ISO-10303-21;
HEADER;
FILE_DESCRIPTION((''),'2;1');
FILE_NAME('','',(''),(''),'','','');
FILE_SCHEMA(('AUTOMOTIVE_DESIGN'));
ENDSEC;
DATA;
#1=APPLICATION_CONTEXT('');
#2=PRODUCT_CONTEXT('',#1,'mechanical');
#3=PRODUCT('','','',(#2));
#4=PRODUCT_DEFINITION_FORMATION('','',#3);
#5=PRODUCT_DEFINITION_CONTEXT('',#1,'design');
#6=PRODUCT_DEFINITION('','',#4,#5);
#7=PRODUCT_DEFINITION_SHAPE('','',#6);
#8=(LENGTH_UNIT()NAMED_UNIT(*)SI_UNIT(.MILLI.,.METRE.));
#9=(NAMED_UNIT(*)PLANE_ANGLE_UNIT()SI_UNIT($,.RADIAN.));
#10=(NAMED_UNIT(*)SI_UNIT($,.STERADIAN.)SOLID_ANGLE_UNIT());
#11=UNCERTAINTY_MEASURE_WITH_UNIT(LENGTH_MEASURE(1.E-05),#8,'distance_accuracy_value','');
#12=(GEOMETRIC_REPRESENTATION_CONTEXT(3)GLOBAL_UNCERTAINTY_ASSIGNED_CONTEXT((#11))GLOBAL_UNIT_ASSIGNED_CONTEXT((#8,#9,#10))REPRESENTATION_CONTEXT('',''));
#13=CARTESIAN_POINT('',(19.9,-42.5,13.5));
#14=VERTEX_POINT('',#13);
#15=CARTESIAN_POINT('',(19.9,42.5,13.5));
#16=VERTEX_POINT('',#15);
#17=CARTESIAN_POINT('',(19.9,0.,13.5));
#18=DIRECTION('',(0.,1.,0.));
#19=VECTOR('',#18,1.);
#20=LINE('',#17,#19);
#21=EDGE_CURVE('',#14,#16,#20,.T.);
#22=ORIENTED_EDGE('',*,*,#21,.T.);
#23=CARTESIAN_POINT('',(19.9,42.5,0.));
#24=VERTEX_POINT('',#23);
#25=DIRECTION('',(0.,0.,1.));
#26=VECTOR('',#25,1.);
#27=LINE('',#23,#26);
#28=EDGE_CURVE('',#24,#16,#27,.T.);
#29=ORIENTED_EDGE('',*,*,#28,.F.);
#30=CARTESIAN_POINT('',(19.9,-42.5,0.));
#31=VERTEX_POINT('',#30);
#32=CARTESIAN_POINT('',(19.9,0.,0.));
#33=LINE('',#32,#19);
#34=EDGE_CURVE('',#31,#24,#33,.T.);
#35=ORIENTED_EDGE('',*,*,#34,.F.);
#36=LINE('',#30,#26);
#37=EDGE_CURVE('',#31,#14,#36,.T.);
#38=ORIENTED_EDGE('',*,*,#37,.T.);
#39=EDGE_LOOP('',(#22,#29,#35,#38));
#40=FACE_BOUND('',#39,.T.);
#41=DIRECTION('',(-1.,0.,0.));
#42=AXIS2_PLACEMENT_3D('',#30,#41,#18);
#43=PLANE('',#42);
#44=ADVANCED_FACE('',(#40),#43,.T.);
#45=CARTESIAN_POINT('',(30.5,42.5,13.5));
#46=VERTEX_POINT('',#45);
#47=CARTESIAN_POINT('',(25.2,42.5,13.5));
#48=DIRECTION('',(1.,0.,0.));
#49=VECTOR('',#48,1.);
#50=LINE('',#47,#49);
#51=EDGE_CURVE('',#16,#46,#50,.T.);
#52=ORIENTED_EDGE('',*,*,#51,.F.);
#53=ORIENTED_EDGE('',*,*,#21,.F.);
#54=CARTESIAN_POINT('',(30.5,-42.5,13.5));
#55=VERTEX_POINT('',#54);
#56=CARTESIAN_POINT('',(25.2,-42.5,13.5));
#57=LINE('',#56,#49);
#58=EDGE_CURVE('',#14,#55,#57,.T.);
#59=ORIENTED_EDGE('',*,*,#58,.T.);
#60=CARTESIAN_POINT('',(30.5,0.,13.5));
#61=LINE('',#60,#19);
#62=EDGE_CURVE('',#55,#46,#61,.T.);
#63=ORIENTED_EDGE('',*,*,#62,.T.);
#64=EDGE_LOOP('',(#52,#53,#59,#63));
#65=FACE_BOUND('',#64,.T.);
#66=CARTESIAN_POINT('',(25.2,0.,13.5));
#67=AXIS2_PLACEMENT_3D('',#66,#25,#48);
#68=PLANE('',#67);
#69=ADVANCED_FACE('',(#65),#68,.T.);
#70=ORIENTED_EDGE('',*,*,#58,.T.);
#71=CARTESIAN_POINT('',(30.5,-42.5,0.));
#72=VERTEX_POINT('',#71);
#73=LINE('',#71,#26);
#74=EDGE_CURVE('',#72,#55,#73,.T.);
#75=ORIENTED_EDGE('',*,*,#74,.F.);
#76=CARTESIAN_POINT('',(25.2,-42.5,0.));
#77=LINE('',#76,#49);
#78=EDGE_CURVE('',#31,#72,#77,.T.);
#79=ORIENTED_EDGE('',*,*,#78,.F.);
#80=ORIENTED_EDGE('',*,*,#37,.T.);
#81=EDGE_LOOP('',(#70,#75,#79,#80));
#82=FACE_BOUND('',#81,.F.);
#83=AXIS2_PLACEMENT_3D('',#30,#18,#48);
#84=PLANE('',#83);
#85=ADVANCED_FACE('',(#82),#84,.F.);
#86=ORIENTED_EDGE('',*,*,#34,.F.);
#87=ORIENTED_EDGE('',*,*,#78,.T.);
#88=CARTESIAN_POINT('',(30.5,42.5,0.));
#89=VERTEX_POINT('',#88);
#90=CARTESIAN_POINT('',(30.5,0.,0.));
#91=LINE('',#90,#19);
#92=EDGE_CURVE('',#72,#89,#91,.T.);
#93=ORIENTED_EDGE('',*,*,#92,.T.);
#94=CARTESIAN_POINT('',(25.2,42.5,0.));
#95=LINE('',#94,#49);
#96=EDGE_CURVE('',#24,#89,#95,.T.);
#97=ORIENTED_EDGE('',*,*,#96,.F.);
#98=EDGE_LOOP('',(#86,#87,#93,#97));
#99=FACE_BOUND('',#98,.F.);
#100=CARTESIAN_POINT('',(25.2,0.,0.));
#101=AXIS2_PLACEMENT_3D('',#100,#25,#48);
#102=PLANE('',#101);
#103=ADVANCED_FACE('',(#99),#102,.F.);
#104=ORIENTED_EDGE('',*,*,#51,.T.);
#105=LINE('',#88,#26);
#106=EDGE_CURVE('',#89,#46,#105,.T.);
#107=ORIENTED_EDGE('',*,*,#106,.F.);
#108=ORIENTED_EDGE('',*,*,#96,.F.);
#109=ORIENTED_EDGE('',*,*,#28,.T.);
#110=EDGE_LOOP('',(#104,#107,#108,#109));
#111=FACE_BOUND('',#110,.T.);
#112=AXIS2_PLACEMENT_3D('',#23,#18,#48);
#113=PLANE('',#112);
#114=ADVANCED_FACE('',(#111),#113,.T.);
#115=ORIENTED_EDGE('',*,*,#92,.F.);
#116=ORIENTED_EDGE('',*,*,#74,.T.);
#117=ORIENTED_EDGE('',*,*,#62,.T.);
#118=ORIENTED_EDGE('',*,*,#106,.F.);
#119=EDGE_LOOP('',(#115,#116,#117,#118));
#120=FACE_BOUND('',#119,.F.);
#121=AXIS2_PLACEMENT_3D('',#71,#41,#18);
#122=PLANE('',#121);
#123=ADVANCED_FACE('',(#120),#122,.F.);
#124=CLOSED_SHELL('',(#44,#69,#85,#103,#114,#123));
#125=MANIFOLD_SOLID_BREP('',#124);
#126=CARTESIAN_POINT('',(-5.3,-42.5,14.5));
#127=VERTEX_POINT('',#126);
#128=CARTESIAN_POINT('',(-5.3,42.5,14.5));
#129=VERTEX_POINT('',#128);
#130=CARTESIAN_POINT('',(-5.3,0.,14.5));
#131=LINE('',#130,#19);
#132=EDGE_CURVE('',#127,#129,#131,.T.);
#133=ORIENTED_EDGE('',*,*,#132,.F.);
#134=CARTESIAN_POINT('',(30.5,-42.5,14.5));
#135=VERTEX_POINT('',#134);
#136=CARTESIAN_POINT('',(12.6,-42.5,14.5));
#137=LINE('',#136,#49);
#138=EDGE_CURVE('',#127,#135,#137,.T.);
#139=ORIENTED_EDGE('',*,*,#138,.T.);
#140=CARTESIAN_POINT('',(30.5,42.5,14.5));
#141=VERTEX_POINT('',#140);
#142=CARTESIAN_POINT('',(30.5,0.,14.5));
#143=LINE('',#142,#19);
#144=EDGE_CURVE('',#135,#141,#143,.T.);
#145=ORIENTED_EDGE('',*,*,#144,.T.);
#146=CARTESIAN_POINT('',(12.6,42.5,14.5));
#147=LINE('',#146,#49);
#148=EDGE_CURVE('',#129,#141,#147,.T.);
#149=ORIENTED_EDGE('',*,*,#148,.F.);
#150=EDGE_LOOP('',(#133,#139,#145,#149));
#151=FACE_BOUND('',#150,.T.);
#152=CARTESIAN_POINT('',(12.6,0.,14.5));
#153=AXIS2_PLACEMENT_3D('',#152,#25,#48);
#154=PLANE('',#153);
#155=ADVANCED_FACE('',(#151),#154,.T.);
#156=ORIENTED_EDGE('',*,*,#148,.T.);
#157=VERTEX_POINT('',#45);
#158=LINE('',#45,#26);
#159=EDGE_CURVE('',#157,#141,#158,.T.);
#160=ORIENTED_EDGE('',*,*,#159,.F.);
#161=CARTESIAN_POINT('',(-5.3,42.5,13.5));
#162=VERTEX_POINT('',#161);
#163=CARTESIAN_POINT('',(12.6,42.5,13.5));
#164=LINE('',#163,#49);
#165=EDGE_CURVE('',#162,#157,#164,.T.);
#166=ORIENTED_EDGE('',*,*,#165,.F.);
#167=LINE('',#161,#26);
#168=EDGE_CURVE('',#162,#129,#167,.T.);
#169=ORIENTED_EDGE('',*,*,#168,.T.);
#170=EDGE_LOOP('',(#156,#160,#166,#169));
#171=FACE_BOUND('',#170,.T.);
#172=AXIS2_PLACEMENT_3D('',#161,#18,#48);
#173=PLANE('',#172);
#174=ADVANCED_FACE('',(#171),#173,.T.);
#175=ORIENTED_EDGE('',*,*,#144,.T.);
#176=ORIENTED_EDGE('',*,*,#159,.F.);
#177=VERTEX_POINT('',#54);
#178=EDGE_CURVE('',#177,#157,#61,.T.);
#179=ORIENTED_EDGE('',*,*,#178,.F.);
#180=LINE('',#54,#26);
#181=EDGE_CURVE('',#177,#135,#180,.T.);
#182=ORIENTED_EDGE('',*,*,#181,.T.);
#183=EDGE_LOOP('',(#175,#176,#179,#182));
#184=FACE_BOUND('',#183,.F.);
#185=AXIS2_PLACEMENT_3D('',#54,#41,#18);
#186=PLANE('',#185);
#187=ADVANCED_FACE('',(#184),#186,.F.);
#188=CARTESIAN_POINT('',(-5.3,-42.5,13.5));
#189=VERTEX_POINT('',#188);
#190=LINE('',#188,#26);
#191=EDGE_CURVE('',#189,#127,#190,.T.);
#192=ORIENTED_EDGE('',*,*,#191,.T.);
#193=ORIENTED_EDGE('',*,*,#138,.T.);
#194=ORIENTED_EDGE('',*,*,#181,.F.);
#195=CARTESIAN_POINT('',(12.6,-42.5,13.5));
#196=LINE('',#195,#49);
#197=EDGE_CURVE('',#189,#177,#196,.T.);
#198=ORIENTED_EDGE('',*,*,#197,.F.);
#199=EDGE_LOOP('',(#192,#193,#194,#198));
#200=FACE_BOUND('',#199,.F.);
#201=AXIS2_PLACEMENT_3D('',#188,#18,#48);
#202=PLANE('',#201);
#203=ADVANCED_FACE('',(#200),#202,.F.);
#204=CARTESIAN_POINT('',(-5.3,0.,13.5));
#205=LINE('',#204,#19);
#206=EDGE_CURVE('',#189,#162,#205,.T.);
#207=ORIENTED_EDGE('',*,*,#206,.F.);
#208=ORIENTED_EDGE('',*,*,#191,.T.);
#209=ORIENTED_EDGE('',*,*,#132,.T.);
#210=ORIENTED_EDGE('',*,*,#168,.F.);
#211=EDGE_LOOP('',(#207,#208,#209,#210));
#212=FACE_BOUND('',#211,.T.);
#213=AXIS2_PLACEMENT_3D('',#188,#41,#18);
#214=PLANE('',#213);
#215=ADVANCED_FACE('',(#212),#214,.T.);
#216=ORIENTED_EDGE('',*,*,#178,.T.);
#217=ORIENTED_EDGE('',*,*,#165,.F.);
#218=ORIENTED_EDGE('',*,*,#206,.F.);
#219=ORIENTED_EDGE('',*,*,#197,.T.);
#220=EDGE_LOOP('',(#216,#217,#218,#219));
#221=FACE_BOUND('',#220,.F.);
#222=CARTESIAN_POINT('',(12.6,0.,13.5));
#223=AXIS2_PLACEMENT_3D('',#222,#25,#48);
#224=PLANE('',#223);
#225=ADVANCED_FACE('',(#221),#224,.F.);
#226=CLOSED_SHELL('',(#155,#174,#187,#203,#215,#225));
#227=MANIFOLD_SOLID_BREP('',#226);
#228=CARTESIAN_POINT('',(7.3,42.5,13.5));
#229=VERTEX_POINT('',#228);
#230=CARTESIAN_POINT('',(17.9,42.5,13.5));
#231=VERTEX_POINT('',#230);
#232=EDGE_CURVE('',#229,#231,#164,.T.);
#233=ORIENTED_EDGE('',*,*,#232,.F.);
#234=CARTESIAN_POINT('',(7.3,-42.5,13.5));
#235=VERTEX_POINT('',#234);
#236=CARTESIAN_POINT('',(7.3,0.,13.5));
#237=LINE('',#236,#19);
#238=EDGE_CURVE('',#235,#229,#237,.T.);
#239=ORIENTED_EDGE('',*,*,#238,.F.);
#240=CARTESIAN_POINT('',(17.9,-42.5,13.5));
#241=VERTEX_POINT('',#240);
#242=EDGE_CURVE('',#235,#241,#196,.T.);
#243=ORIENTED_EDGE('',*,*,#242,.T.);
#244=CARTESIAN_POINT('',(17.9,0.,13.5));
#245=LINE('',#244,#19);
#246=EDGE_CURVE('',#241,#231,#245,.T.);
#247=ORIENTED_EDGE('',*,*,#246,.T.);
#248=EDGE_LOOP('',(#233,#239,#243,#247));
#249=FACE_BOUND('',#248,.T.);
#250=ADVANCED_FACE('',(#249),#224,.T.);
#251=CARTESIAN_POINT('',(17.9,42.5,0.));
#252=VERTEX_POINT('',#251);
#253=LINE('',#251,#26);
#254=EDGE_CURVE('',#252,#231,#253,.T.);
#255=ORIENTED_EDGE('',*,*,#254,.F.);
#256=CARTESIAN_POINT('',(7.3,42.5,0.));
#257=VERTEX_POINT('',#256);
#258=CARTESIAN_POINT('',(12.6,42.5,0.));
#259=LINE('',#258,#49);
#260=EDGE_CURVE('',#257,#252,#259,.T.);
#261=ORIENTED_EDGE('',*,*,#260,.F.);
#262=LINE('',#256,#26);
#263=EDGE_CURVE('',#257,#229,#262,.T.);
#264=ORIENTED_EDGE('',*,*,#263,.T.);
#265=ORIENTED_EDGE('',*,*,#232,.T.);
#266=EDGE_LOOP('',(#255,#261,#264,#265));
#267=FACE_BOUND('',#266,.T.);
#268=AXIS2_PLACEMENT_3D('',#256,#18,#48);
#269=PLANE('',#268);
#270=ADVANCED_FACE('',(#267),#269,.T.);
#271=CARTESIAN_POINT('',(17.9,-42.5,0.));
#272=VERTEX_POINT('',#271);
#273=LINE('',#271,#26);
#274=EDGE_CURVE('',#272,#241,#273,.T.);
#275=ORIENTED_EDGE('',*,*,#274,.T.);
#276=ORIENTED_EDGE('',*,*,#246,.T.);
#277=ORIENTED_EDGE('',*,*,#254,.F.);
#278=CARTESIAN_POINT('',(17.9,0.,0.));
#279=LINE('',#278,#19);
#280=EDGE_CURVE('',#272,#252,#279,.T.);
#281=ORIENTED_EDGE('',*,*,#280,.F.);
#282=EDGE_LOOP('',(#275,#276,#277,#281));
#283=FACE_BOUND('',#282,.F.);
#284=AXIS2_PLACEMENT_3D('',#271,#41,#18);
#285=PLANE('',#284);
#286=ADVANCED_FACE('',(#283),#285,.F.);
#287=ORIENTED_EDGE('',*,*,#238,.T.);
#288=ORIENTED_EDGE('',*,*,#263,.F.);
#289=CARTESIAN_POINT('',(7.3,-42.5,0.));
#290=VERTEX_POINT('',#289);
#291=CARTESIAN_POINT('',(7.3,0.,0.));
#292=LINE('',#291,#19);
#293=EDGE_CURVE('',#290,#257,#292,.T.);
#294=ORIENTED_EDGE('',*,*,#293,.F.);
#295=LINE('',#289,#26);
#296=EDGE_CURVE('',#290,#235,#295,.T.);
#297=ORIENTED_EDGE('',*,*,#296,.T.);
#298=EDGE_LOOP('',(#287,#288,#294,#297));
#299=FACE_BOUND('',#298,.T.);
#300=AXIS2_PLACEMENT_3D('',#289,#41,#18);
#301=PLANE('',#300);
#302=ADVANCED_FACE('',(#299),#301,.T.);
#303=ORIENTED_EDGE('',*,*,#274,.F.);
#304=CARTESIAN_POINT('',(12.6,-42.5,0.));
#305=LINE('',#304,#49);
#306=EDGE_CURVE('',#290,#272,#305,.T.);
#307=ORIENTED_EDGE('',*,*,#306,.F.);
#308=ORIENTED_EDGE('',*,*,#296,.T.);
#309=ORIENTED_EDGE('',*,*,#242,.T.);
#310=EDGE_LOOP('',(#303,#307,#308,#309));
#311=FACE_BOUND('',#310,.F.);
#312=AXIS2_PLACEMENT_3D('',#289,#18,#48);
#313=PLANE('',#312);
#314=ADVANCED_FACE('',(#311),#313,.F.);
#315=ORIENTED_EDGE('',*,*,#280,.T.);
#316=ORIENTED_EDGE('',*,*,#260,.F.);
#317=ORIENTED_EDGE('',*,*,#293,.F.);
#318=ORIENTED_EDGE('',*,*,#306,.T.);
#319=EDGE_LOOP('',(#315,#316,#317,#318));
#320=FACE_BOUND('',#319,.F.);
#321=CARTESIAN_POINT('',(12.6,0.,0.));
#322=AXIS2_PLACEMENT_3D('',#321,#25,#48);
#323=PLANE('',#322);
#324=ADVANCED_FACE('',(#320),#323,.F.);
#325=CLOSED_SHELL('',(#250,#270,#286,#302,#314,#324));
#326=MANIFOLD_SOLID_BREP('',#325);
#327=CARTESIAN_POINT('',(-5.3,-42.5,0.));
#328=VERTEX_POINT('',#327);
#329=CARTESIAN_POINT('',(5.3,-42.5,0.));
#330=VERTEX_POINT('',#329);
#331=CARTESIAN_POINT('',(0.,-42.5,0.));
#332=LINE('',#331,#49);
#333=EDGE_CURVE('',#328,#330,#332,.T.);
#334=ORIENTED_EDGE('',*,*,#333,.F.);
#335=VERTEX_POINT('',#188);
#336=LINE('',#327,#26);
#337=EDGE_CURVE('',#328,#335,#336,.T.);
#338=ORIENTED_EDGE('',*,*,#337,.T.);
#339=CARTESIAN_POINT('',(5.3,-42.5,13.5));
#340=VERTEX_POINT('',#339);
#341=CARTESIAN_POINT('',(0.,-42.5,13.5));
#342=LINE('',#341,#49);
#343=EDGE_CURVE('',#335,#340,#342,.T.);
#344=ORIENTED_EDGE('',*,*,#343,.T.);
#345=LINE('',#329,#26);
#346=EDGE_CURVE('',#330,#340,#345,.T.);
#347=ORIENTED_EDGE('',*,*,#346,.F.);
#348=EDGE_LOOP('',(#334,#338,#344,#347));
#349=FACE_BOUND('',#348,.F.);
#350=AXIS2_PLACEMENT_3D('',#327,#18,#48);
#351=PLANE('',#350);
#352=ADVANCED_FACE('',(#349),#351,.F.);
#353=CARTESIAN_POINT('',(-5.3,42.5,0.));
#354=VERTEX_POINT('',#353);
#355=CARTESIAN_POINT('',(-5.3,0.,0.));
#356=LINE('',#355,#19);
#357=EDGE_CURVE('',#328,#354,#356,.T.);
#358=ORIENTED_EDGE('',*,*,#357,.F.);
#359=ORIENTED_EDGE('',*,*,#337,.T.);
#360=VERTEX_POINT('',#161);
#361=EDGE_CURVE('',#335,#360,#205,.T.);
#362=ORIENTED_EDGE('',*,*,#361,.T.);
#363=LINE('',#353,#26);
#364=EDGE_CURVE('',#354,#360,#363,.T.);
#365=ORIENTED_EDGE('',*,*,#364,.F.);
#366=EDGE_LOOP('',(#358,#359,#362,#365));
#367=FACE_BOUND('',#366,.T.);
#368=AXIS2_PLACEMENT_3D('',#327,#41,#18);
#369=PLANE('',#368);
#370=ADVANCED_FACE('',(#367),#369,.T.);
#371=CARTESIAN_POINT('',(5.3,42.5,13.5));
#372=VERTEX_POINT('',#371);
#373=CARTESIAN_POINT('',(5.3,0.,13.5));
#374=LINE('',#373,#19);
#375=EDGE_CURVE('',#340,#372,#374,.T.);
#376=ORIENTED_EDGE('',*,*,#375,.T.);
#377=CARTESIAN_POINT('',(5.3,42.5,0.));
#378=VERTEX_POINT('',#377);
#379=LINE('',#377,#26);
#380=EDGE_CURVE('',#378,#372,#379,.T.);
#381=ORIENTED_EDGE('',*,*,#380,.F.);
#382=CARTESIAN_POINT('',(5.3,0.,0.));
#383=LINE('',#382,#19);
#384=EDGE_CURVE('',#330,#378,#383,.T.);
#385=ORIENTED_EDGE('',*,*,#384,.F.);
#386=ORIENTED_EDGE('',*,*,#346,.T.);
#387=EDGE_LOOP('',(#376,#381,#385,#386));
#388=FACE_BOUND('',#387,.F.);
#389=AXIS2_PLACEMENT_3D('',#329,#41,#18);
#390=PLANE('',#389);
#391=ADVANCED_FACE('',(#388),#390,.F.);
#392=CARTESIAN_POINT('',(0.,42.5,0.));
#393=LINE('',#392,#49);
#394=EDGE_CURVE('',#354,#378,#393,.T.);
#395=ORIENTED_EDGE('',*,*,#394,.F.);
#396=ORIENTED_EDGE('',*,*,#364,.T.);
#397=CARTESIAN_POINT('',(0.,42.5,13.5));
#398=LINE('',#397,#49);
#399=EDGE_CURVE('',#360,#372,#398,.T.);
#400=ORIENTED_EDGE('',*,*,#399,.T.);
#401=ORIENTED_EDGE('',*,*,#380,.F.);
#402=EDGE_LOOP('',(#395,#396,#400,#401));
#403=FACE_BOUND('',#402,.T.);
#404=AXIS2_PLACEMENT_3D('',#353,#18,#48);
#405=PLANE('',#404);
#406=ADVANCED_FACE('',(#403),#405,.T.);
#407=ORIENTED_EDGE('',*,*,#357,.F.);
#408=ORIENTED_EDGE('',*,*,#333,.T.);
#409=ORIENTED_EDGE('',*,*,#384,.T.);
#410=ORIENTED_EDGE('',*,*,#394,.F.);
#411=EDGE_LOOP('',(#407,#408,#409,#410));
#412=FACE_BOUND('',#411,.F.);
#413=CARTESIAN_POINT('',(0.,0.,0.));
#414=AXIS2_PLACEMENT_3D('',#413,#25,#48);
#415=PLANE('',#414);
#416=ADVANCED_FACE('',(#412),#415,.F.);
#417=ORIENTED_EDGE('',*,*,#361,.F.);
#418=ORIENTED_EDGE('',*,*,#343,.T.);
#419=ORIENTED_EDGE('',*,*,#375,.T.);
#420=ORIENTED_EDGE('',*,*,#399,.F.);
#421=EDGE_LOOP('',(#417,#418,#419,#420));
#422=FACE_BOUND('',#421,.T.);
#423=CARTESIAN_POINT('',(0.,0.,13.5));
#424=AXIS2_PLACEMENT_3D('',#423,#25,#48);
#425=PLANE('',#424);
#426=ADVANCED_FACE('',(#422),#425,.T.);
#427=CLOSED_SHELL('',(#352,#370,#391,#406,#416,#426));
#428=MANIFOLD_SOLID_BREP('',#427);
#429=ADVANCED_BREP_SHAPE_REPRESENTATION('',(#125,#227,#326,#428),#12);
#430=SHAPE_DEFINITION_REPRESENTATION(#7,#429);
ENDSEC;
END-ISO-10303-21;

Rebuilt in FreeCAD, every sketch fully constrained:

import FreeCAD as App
import Part
import Sketcher
from FreeCAD import Vector
Q = App.Units.Quantity

doc = App.newDocument("Part")
body = doc.addObject("PartDesign::Body", "Body")
body.AllowCompound = True

sketch1 = body.newObject("Sketcher::SketchObject", "Sketch")
sketch1.AttachmentSupport = (doc.getObject("XY_Plane"), [""])
sketch1.MapMode = "FlatFace"
sketch1.addGeometry(Part.LineSegment(Vector(-5, 42, 0), Vector(-5, -42, 0)), False)
sketch1.addGeometry(Part.LineSegment(Vector(-5, -42, 0), Vector(5, -42, 0)), False)
sketch1.addGeometry(Part.LineSegment(Vector(5, -42, 0), Vector(5, 42, 0)), False)
sketch1.addGeometry(Part.LineSegment(Vector(5, 42, 0), Vector(-5, 42, 0)), False)
sketch1.addGeometry(Part.LineSegment(Vector(7, 42, 0), Vector(7, -42, 0)), False)
sketch1.addGeometry(Part.LineSegment(Vector(7, -42, 0), Vector(18, -42, 0)), False)
sketch1.addGeometry(Part.LineSegment(Vector(18, -42, 0), Vector(18, 42, 0)), False)
sketch1.addGeometry(Part.LineSegment(Vector(18, 42, 0), Vector(7, 42, 0)), False)
sketch1.addGeometry(Part.LineSegment(Vector(20, 42, 0), Vector(20, -42, 0)), False)
sketch1.addGeometry(Part.LineSegment(Vector(20, -42, 0), Vector(30, -42, 0)), False)
sketch1.addGeometry(Part.LineSegment(Vector(30, -42, 0), Vector(30, 42, 0)), False)
sketch1.addGeometry(Part.LineSegment(Vector(30, 42, 0), Vector(20, 42, 0)), False)
sketch1.addConstraint(Sketcher.Constraint("Coincident", 0, 2, 1, 1))
sketch1.addConstraint(Sketcher.Constraint("Coincident", 1, 2, 2, 1))
sketch1.addConstraint(Sketcher.Constraint("Coincident", 2, 2, 3, 1))
sketch1.addConstraint(Sketcher.Constraint("Coincident", 3, 2, 0, 1))
sketch1.addConstraint(Sketcher.Constraint("Coincident", 4, 2, 5, 1))
sketch1.addConstraint(Sketcher.Constraint("Coincident", 5, 2, 6, 1))
sketch1.addConstraint(Sketcher.Constraint("Coincident", 6, 2, 7, 1))
sketch1.addConstraint(Sketcher.Constraint("Coincident", 7, 2, 4, 1))
sketch1.addConstraint(Sketcher.Constraint("Coincident", 8, 2, 9, 1))
sketch1.addConstraint(Sketcher.Constraint("Coincident", 9, 2, 10, 1))
sketch1.addConstraint(Sketcher.Constraint("Coincident", 10, 2, 11, 1))
sketch1.addConstraint(Sketcher.Constraint("Coincident", 11, 2, 8, 1))
sketch1.addConstraint(Sketcher.Constraint("Vertical", 0))
sketch1.addConstraint(Sketcher.Constraint("Horizontal", 1))
sketch1.addConstraint(Sketcher.Constraint("Vertical", 2))
sketch1.addConstraint(Sketcher.Constraint("Horizontal", 3))
sketch1.addConstraint(Sketcher.Constraint("Vertical", 4))
sketch1.addConstraint(Sketcher.Constraint("Horizontal", 5))
sketch1.addConstraint(Sketcher.Constraint("Vertical", 6))
sketch1.addConstraint(Sketcher.Constraint("Horizontal", 7))
sketch1.addConstraint(Sketcher.Constraint("Vertical", 8))
sketch1.addConstraint(Sketcher.Constraint("Horizontal", 9))
sketch1.addConstraint(Sketcher.Constraint("Vertical", 10))
sketch1.addConstraint(Sketcher.Constraint("Horizontal", 11))
sketch1.addConstraint(Sketcher.Constraint("Symmetric", 0, 2, 2, 2, -1, 1))
sketch1.addConstraint(Sketcher.Constraint("Horizontal", 1, 2, 4, 2))
sketch1.addConstraint(Sketcher.Constraint("Horizontal", 3, 2, 6, 2))
sketch1.addConstraint(Sketcher.Constraint("Horizontal", 5, 2, 8, 2))
sketch1.addConstraint(Sketcher.Constraint("Horizontal", 7, 2, 10, 2))
sketch1.addConstraint(Sketcher.Constraint("Equal", 3, 5))
sketch1.addConstraint(Sketcher.Constraint("Equal", 7, 9))
sketch1.addConstraint(Sketcher.Constraint("DistanceY", 0, 2, 0, 1, Q("85 mm")))
sketch1.addConstraint(Sketcher.Constraint("DistanceX", 1, 1, 1, 2, Q("10.6 mm")))
sketch1.addConstraint(Sketcher.Constraint("DistanceX", 1, 2, 4, 2, Q("2 mm")))
sketch1.addConstraint(Sketcher.Constraint("DistanceX", 5, 2, 8, 2, Q("2 mm")))
pad1 = body.newObject("PartDesign::Pad", "Pad")
pad1.Profile = sketch1
pad1.Length = 13.5
body2 = doc.addObject("PartDesign::Body", "Body001")

sketch2 = body2.newObject("Sketcher::SketchObject", "Sketch001")
sketch2.AttachmentSupport = (doc.getObject("XY_Plane001"), [""])
sketch2.MapMode = "FlatFace"
sketch2.AttachmentOffset = App.Placement(Vector(0, 0, 13.5), App.Rotation())
sketch2.addGeometry(Part.LineSegment(Vector(-5, 42, 0), Vector(-5, -42, 0)), False)
sketch2.addGeometry(Part.LineSegment(Vector(-5, -42, 0), Vector(30, -42, 0)), False)
sketch2.addGeometry(Part.LineSegment(Vector(30, -42, 0), Vector(30, 42, 0)), False)
sketch2.addGeometry(Part.LineSegment(Vector(30, 42, 0), Vector(-5, 42, 0)), False)
sketch2.addConstraint(Sketcher.Constraint("Coincident", 0, 2, 1, 1))
sketch2.addConstraint(Sketcher.Constraint("Coincident", 1, 2, 2, 1))
sketch2.addConstraint(Sketcher.Constraint("Coincident", 2, 2, 3, 1))
sketch2.addConstraint(Sketcher.Constraint("Coincident", 3, 2, 0, 1))
sketch2.addConstraint(Sketcher.Constraint("Vertical", 0))
sketch2.addConstraint(Sketcher.Constraint("Horizontal", 1))
sketch2.addConstraint(Sketcher.Constraint("Vertical", 2))
sketch2.addConstraint(Sketcher.Constraint("Horizontal", 3))
sketch2.addConstraint(Sketcher.Constraint("DistanceY", 0, 2, 0, 1, Q("85 mm")))
sketch2.addConstraint(Sketcher.Constraint("DistanceX", 1, 1, 1, 2, Q("35.8 mm")))
sketch2.addConstraint(Sketcher.Constraint("DistanceX", 0, 2, -1, 1, Q("5.3 mm")))
sketch2.addConstraint(Sketcher.Constraint("DistanceY", 0, 2, -1, 1, Q("42.5 mm")))
pad2 = body2.newObject("PartDesign::Pad", "Pad001")
pad2.Profile = sketch2
pad2.Length = 1

doc.recompute()
